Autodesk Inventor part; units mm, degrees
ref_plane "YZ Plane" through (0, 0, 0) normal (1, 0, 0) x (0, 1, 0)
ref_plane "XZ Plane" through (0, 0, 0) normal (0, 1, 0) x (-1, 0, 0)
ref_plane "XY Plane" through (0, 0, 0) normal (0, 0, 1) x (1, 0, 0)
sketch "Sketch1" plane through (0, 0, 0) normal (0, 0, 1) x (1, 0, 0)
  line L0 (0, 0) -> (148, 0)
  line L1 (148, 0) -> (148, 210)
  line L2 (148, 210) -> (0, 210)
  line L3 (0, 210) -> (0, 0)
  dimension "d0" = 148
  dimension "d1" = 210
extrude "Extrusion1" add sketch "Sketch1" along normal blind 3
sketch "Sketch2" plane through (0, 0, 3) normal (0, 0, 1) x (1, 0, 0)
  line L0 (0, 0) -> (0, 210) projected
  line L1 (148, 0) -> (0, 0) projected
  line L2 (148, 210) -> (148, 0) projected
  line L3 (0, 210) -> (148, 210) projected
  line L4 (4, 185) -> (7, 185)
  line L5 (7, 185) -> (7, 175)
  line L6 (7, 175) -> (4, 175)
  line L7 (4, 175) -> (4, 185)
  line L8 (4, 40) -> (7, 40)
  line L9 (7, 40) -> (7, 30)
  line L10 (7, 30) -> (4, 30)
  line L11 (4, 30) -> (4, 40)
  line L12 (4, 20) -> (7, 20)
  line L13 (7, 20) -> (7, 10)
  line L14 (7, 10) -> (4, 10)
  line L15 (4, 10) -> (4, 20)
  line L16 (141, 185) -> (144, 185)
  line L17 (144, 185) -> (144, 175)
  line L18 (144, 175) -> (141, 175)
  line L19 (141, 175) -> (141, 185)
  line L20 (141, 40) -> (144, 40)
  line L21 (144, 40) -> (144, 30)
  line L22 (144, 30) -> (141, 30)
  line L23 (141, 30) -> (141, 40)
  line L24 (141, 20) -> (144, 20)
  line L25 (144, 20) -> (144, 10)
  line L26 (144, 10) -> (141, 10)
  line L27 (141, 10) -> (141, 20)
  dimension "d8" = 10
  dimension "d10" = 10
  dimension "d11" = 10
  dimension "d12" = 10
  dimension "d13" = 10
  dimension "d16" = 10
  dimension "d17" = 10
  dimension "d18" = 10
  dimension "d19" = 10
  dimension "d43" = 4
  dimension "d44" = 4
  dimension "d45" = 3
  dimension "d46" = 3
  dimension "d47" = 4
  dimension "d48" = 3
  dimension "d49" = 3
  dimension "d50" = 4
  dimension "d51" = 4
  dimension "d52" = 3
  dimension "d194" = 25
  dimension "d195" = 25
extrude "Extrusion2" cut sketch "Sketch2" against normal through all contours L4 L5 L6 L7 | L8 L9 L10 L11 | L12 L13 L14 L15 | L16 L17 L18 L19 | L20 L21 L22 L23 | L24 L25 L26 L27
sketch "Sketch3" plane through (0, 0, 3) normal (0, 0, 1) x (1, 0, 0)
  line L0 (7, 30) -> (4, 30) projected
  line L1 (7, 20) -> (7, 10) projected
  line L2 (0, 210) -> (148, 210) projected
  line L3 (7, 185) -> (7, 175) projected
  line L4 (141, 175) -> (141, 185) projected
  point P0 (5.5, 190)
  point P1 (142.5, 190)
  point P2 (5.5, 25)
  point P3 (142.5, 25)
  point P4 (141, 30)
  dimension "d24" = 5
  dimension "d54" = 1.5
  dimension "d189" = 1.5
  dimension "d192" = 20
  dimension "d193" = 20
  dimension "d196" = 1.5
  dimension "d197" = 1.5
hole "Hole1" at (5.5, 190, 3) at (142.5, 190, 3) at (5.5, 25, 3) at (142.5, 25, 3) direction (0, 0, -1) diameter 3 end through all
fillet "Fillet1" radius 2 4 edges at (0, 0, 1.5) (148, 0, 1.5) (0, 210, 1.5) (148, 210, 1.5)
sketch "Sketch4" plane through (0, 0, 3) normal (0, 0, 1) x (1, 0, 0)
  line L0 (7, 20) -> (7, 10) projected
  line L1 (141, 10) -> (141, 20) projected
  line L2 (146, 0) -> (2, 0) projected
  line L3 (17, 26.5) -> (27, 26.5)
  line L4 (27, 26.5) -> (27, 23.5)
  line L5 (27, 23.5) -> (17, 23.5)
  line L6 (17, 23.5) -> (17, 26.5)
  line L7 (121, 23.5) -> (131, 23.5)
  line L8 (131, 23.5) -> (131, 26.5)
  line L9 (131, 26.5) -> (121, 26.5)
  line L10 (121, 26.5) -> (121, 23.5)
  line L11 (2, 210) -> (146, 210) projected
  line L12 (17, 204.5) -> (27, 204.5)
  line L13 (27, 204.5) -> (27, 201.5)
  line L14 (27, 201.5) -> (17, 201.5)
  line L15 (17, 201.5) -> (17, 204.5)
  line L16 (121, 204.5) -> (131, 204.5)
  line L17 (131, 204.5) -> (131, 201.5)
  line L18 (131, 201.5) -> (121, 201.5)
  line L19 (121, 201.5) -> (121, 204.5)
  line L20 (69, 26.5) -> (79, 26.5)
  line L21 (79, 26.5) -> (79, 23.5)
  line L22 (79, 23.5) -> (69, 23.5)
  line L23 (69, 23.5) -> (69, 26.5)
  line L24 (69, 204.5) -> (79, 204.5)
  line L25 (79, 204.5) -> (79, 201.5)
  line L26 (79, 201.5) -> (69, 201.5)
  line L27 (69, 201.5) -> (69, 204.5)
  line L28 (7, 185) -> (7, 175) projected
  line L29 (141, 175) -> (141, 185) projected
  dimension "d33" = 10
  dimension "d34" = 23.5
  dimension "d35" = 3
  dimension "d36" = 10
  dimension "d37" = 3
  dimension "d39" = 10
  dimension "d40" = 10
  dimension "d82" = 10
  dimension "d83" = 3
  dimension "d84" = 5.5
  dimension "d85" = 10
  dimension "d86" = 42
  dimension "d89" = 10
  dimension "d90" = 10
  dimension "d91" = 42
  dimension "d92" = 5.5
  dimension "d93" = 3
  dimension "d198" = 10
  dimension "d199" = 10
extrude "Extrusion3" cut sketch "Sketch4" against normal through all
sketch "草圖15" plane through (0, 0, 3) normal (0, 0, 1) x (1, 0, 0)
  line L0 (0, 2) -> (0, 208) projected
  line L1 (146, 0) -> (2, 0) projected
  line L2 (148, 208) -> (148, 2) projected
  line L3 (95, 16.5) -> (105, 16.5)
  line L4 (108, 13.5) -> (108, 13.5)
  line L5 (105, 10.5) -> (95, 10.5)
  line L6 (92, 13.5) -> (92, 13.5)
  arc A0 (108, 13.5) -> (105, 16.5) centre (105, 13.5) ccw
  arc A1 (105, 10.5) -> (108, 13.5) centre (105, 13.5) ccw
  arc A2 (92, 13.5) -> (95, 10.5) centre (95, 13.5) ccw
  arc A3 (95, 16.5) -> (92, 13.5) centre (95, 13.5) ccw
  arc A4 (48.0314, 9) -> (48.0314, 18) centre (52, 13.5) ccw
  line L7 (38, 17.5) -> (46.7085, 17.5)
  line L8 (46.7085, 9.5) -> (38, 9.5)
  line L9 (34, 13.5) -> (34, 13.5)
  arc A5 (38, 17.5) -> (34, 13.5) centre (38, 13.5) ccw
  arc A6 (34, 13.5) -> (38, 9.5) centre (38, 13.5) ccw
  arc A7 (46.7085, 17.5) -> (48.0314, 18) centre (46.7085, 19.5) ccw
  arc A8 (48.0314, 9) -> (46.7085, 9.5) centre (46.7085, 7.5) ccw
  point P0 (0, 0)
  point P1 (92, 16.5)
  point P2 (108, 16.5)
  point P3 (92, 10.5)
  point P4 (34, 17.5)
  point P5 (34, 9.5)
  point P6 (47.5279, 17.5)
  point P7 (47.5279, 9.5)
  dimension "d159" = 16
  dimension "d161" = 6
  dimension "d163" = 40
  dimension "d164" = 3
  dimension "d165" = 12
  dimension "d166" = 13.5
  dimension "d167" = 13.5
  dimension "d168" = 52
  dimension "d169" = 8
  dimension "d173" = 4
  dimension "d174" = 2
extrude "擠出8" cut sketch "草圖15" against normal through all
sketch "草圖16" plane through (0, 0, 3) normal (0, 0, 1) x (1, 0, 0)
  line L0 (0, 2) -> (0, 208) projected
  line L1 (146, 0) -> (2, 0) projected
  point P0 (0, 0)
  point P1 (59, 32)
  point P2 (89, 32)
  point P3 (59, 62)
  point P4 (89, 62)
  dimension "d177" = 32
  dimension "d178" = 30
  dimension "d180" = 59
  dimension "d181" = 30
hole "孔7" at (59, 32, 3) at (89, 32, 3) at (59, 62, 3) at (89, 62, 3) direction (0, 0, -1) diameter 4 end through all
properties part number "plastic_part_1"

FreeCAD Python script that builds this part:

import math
import FreeCAD as App
import Part
import Sketcher


def edges_at(feature, points):
    """Names of the edges that pass closest to the given points."""
    edges = feature.Shape.Edges
    near = lambda p: min(range(len(edges)), key=lambda i: edges[i].distToShape(Part.Vertex(*p))[0])
    return sorted({f"Edge{near(p) + 1}" for p in points})


def add_polygon(sketch, points):
    """Adds a closed chain of lines whose ends are joined by coincident constraints."""
    first, n = sketch.GeometryCount, len(points)
    for a, b in zip(points, points[1:] + points[:1]):
        sketch.addGeometry(Part.LineSegment(App.Vector(*a, 0), App.Vector(*b, 0)), False)
    for i in range(n):
        sketch.addConstraint(Sketcher.Constraint("Coincident", first + i, 2, first + (i + 1) % n, 1))

doc = App.newDocument("Part")
params = doc.addObject("Spreadsheet::Sheet", "Params")
for row, (alias, value) in enumerate([
    ("sketch1_width", "148 mm"),
    ("sketch1_height", "210 mm"),
    ("pad1_length", "3 mm"),
    ("sketch2_width", "3 mm"),
    ("sketch2_height", "10 mm"),
    ("sketch3_diameter", "3 mm"),
    ("hole_diameter", "3 mm"),
    ("fillet_radius", "2 mm"),
    ("sketch4_width", "10 mm"),
    ("sketch4_height", "3 mm"),
    ("sketch5_radius", "3 mm"),
    ("sketch5_radius2", "2 mm"),
    ("sketch5_radius3", "6 mm"),
    ("sketch5_radius4", "4 mm"),
    ("sketch5_width", "10 mm"),
    ("sketch6_diameter", "4 mm"),
    ("hole2_diameter", "4 mm"),
], start=1):
    params.set(f"A{row}", alias)
    params.set(f"B{row}", "=" + value)
    params.setAlias(f"B{row}", alias)

body = doc.addObject("PartDesign::Body", "Body")

sketch1 = body.newObject("Sketcher::SketchObject", "Sketch")
sketch1.AttachmentSupport = (doc.getObject("XY_Plane"), [""])
sketch1.MapMode = "FlatFace"
add_polygon(sketch1, [(0, 210), (0, 0), (148, 0), (148, 210)])
sketch1.addConstraint(Sketcher.Constraint("Vertical", 0))
sketch1.addConstraint(Sketcher.Constraint("Horizontal", 1))
sketch1.addConstraint(Sketcher.Constraint("Vertical", 2))
sketch1.addConstraint(Sketcher.Constraint("Horizontal", 3))
sketch1.addConstraint(Sketcher.Constraint("Coincident", 0, 2, -1, 1))
sketch1.addConstraint(Sketcher.Constraint("DistanceX", 1, 1, 1, 2, 148.0))
sketch1.addConstraint(Sketcher.Constraint("DistanceY", 0, 2, 0, 1, 210.0))
sketch1.setExpression("Constraints[9]", "Params.sketch1_width")
sketch1.setExpression("Constraints[10]", "Params.sketch1_height")
pad1 = body.newObject("PartDesign::Pad", "Pad")
pad1.Profile = sketch1
pad1.setExpression("Length", "Params.pad1_length")

sketch2 = body.newObject("Sketcher::SketchObject", "Sketch001")
sketch2.AttachmentSupport = (doc.getObject("XY_Plane"), [""])
sketch2.MapMode = "FlatFace"
sketch2.AttachmentOffset = App.Placement(App.Vector(0, 0, 3), App.Rotation())
add_polygon(sketch2, [(7, 185), (4, 185), (4, 175), (7, 175)])
add_polygon(sketch2, [(7, 40), (4, 40), (4, 30), (7, 30)])
add_polygon(sketch2, [(7, 20), (4, 20), (4, 10), (7, 10)])
add_polygon(sketch2, [(144, 185), (141, 185), (141, 175), (144, 175)])
add_polygon(sketch2, [(144, 40), (141, 40), (141, 30), (144, 30)])
add_polygon(sketch2, [(144, 20), (141, 20), (141, 10), (144, 10)])
sketch2.addConstraint(Sketcher.Constraint("Horizontal", 0))
sketch2.addConstraint(Sketcher.Constraint("Vertical", 1))
sketch2.addConstraint(Sketcher.Constraint("Horizontal", 2))
sketch2.addConstraint(Sketcher.Constraint("Vertical", 3))
sketch2.addConstraint(Sketcher.Constraint("Horizontal", 4))
sketch2.addConstraint(Sketcher.Constraint("Vertical", 5))
sketch2.addConstraint(Sketcher.Constraint("Horizontal", 6))
sketch2.addConstraint(Sketcher.Constraint("Vertical", 7))
sketch2.addConstraint(Sketcher.Constraint("Horizontal", 8))
sketch2.addConstraint(Sketcher.Constraint("Vertical", 9))
sketch2.addConstraint(Sketcher.Constraint("Horizontal", 10))
sketch2.addConstraint(Sketcher.Constraint("Vertical", 11))
sketch2.addConstraint(Sketcher.Constraint("Horizontal", 12))
sketch2.addConstraint(Sketcher.Constraint("Vertical", 13))
sketch2.addConstraint(Sketcher.Constraint("Horizontal", 14))
sketch2.addConstraint(Sketcher.Constraint("Vertical", 15))
sketch2.addConstraint(Sketcher.Constraint("Horizontal", 16))
sketch2.addConstraint(Sketcher.Constraint("Vertical", 17))
sketch2.addConstraint(Sketcher.Constraint("Horizontal", 18))
sketch2.addConstraint(Sketcher.Constraint("Vertical", 19))
sketch2.addConstraint(Sketcher.Constraint("Horizontal", 20))
sketch2.addConstraint(Sketcher.Constraint("Vertical", 21))
sketch2.addConstraint(Sketcher.Constraint("Horizontal", 22))
sketch2.addConstraint(Sketcher.Constraint("Vertical", 23))
sketch2.addConstraint(Sketcher.Constraint("Horizontal", 3, 2, 12, 2))
sketch2.addConstraint(Sketcher.Constraint("Horizontal", 2, 2, 13, 2))
sketch2.addConstraint(Sketcher.Constraint("Horizontal", 7, 2, 16, 2))
sketch2.addConstraint(Sketcher.Constraint("Horizontal", 6, 2, 17, 2))
sketch2.addConstraint(Sketcher.Constraint("Horizontal", 11, 2, 20, 2))
sketch2.addConstraint(Sketcher.Constraint("Horizontal", 10, 2, 21, 2))
sketch2.addConstraint(Sketcher.Constraint("Vertical", 1, 2, 4, 2))
sketch2.addConstraint(Sketcher.Constraint("Vertical", 3, 2, 6, 2))
sketch2.addConstraint(Sketcher.Constraint("Vertical", 5, 2, 8, 2))
sketch2.addConstraint(Sketcher.Constraint("Vertical", 7, 2, 10, 2))
sketch2.addConstraint(Sketcher.Constraint("Vertical", 13, 2, 16, 2))
sketch2.addConstraint(Sketcher.Constraint("Vertical", 15, 2, 18, 2))
sketch2.addConstraint(Sketcher.Constraint("Vertical", 17, 2, 20, 2))
sketch2.addConstraint(Sketcher.Constraint("Vertical", 19, 2, 22, 2))
sketch2.addConstraint(Sketcher.Constraint("Equal", 10, 12))
sketch2.addConstraint(Sketcher.Constraint("Equal", 3, 5))
sketch2.addConstraint(Sketcher.Constraint("Equal", 7, 9))
sketch2.addConstraint(Sketcher.Constraint("DistanceX", 0, 2, 0, 1, 3.0))
sketch2.addConstraint(Sketcher.Constraint("DistanceY", 1, 2, 1, 1, 10.0))
sketch2.addConstraint(Sketcher.Constraint("DistanceX", -1, 1, 0, 2, 4.0))
sketch2.addConstraint(Sketcher.Constraint("DistanceY", -1, 1, 9, 2, 10.0))
sketch2.addConstraint(Sketcher.Constraint("DistanceY", 8, 2, 5, 2, 10.0))
sketch2.addConstraint(Sketcher.Constraint("DistanceY", -1, 1, 0, 2, 185.0))
sketch2.addConstraint(Sketcher.Constraint("DistanceX", -1, 1, 12, 2, 141.0))
sketch2.setExpression("Constraints[65]", "Params.sketch2_width")
sketch2.setExpression("Constraints[66]", "Params.sketch2_height")
pocket1 = body.newObject("PartDesign::Pocket", "Pocket")
pocket1.Profile = sketch2
pocket1.Type = "ThroughAll"

sketch3 = body.newObject("Sketcher::SketchObject", "Sketch002")
sketch3.AttachmentSupport = (doc.getObject("XY_Plane"), [""])
sketch3.MapMode = "FlatFace"
sketch3.AttachmentOffset = App.Placement(App.Vector(0, 0, 3), App.Rotation())
sketch3.addGeometry(Part.Circle(App.Vector(5.5, 190, 0), App.Vector(0, 0, 1), 1.5), False)
sketch3.addGeometry(Part.Circle(App.Vector(142.5, 190, 0), App.Vector(0, 0, 1), 1.5), False)
sketch3.addGeometry(Part.Circle(App.Vector(5.5, 25, 0), App.Vector(0, 0, 1), 1.5), False)
sketch3.addGeometry(Part.Circle(App.Vector(142.5, 25, 0), App.Vector(0, 0, 1), 1.5), False)
sketch3.addConstraint(Sketcher.Constraint("Equal", 0, 1))
sketch3.addConstraint(Sketcher.Constraint("Equal", 1, 2))
sketch3.addConstraint(Sketcher.Constraint("Equal", 2, 3))
sketch3.addConstraint(Sketcher.Constraint("Horizontal", 0, 3, 1, 3))
sketch3.addConstraint(Sketcher.Constraint("Horizontal", 2, 3, 3, 3))
sketch3.addConstraint(Sketcher.Constraint("Vertical", 0, 3, 2, 3))
sketch3.addConstraint(Sketcher.Constraint("Vertical", 1, 3, 3, 3))
sketch3.addConstraint(Sketcher.Constraint("Diameter", 0, 3.0))
sketch3.addConstraint(Sketcher.Constraint("DistanceY", -1, 1, 0, 3, 190.0))
sketch3.addConstraint(Sketcher.Constraint("DistanceY", -1, 1, 2, 3, 25.0))
sketch3.addConstraint(Sketcher.Constraint("DistanceX", 0, 3, 1, 3, 137.0))
sketch3.addConstraint(Sketcher.Constraint("DistanceX", -1, 1, 0, 3, 5.5))
sketch3.setExpression("Constraints[7]", "Params.sketch3_diameter")
doc.recompute()
hole = body.newObject("PartDesign::Hole", "Hole")
hole.Profile = sketch3
hole.ThreadType = "None"
hole.setExpression("Diameter", "Params.hole_diameter")
hole.DepthType = "ThroughAll"
doc.recompute()

fillet = body.newObject("PartDesign::Fillet", "Fillet")
fillet.Base = (hole, edges_at(hole, [
    (0, 0, 1.5),
    (148, 0, 1.5),
    (0, 210, 1.5),
    (148, 210, 1.5),
]))
fillet.setExpression("Radius", "Params.fillet_radius")

sketch4 = body.newObject("Sketcher::SketchObject", "Sketch003")
sketch4.AttachmentSupport = (doc.getObject("XY_Plane"), [""])
sketch4.MapMode = "FlatFace"
sketch4.AttachmentOffset = App.Placement(App.Vector(0, 0, 3), App.Rotation())
add_polygon(sketch4, [(27, 26.5), (17, 26.5), (17, 23.5), (27, 23.5)])
add_polygon(sketch4, [(121, 26.5), (121, 23.5), (131, 23.5), (131, 26.5)])
add_polygon(sketch4, [(27, 204.5), (17, 204.5), (17, 201.5), (27, 201.5)])
add_polygon(sketch4, [(131, 204.5), (121, 204.5), (121, 201.5), (131, 201.5)])
add_polygon(sketch4, [(79, 26.5), (69, 26.5), (69, 23.5), (79, 23.5)])
add_polygon(sketch4, [(79, 204.5), (69, 204.5), (69, 201.5), (79, 201.5)])
sketch4.addConstraint(Sketcher.Constraint("Horizontal", 0))
sketch4.addConstraint(Sketcher.Constraint("Vertical", 1))
sketch4.addConstraint(Sketcher.Constraint("Horizontal", 2))
sketch4.addConstraint(Sketcher.Constraint("Vertical", 3))
sketch4.addConstraint(Sketcher.Constraint("Vertical", 4))
sketch4.addConstraint(Sketcher.Constraint("Horizontal", 5))
sketch4.addConstraint(Sketcher.Constraint("Vertical", 6))
sketch4.addConstraint(Sketcher.Constraint("Horizontal", 7))
sketch4.addConstraint(Sketcher.Constraint("Horizontal", 8))
sketch4.addConstraint(Sketcher.Constraint("Vertical", 9))
sketch4.addConstraint(Sketcher.Constraint("Horizontal", 10))
sketch4.addConstraint(Sketcher.Constraint("Vertical", 11))
sketch4.addConstraint(Sketcher.Constraint("Horizontal", 12))
sketch4.addConstraint(Sketcher.Constraint("Vertical", 13))
sketch4.addConstraint(Sketcher.Constraint("Horizontal", 14))
sketch4.addConstraint(Sketcher.Constraint("Vertical", 15))
sketch4.addConstraint(Sketcher.Constraint("Horizontal", 16))
sketch4.addConstraint(Sketcher.Constraint("Vertical", 17))
sketch4.addConstraint(Sketcher.Constraint("Horizontal", 18))
sketch4.addConstraint(Sketcher.Constraint("Vertical", 19))
sketch4.addConstraint(Sketcher.Constraint("Horizontal", 20))
sketch4.addConstraint(Sketcher.Constraint("Vertical", 21))
sketch4.addConstraint(Sketcher.Constraint("Horizontal", 22))
sketch4.addConstraint(Sketcher.Constraint("Vertical", 23))
sketch4.addConstraint(Sketcher.Constraint("Horizontal", 2, 2, 4, 2))
sketch4.addConstraint(Sketcher.Constraint("Horizontal", 3, 2, 6, 2))
sketch4.addConstraint(Sketcher.Constraint("Horizontal", 11, 2, 12, 2))
sketch4.addConstraint(Sketcher.Constraint("Horizontal", 10, 2, 13, 2))
sketch4.addConstraint(Sketcher.Constraint("Horizontal", 7, 2, 16, 2))
sketch4.addConstraint(Sketcher.Constraint("Horizontal", 5, 2, 17, 2))
sketch4.addConstraint(Sketcher.Constraint("Horizontal", 15, 2, 20, 2))
sketch4.addConstraint(Sketcher.Constraint("Horizontal", 14, 2, 21, 2))
sketch4.addConstraint(Sketcher.Constraint("Vertical", 1, 2, 8, 2))
sketch4.addConstraint(Sketcher.Constraint("Vertical", 3, 2, 10, 2))
sketch4.addConstraint(Sketcher.Constraint("Vertical", 7, 2, 12, 2))
sketch4.addConstraint(Sketcher.Constraint("Vertical", 6, 2, 14, 2))
sketch4.addConstraint(Sketcher.Constraint("Vertical", 17, 2, 20, 2))
sketch4.addConstraint(Sketcher.Constraint("Vertical", 19, 2, 22, 2))
sketch4.addConstraint(Sketcher.Constraint("Equal", 2, 5))
sketch4.addConstraint(Sketcher.Constraint("Equal", 14, 16))
sketch4.addConstraint(Sketcher.Constraint("Equal", 6, 9))
sketch4.addConstraint(Sketcher.Constraint("DistanceX", 0, 2, 0, 1, 10.0))
sketch4.addConstraint(Sketcher.Constraint("DistanceY", 1, 2, 1, 1, 3.0))
sketch4.addConstraint(Sketcher.Constraint("DistanceX", 3, 2, 16, 2, 42.0))
sketch4.addConstraint(Sketcher.Constraint("DistanceX", 18, 2, 4, 2, 42.0))
sketch4.addConstraint(Sketcher.Constraint("DistanceY", -1, 1, 1, 2, 23.5))
sketch4.addConstraint(Sketcher.Constraint("DistanceX", -1, 1, 0, 2, 17.0))
sketch4.addConstraint(Sketcher.Constraint("DistanceY", 0, 2, 8, 2, 178.0))
sketch4.setExpression("Constraints[65]", "Params.sketch4_width")
sketch4.setExpression("Constraints[66]", "Params.sketch4_height")
pocket2 = body.newObject("PartDesign::Pocket", "Pocket001")
pocket2.Profile = sketch4
pocket2.Type = "ThroughAll"

sketch5 = body.newObject("Sketcher::SketchObject", "Sketch004")
sketch5.AttachmentSupport = (doc.getObject("XY_Plane"), [""])
sketch5.MapMode = "FlatFace"
sketch5.AttachmentOffset = App.Placement(App.Vector(0, 0, 3), App.Rotation())
sketch5.addGeometry(Part.LineSegment(App.Vector(105, 16.5, 0), App.Vector(95, 16.5, 0)), False)
sketch5.addGeometry(Part.ArcOfCircle(Part.Circle(App.Vector(95, 13.5, 0), App.Vector(0, 0, 1), 3), math.radians(90), math.radians(270)), False)
sketch5.addGeometry(Part.LineSegment(App.Vector(95, 10.5, 0), App.Vector(105, 10.5, 0)), False)
sketch5.addGeometry(Part.ArcOfCircle(Part.Circle(App.Vector(105, 13.5, 0), App.Vector(0, 0, 1), 3), math.radians(-90), math.radians(90)), False)
sketch5.addGeometry(Part.ArcOfCircle(Part.Circle(App.Vector(46.7, 7.5, 0), App.Vector(0, 0, 1), 2), math.radians(49), math.radians(90)), False)
sketch5.addGeometry(Part.ArcOfCircle(Part.Circle(App.Vector(52, 13.5, 0), App.Vector(0, 0, 1), 6), math.radians(-131), math.radians(131)), False)
sketch5.addGeometry(Part.ArcOfCircle(Part.Circle(App.Vector(46.7, 19.5, 0), App.Vector(0, 0, 1), 2), math.radians(-90), math.radians(-49)), False)
sketch5.addGeometry(Part.LineSegment(App.Vector(46.7, 17.5, 0), App.Vector(38, 17.5, 0)), False)
sketch5.addGeometry(Part.ArcOfCircle(Part.Circle(App.Vector(38, 13.5, 0), App.Vector(0, 0, 1), 4), math.radians(90), math.radians(270)), False)
sketch5.addGeometry(Part.LineSegment(App.Vector(38, 9.5, 0), App.Vector(46.7, 9.5, 0)), False)
sketch5.addConstraint(Sketcher.Constraint("Tangent", 0, 2, 1, 1))
sketch5.addConstraint(Sketcher.Constraint("Tangent", 1, 2, 2, 1))
sketch5.addConstraint(Sketcher.Constraint("Tangent", 2, 2, 3, 1))
sketch5.addConstraint(Sketcher.Constraint("Tangent", 3, 2, 0, 1))
sketch5.addConstraint(Sketcher.Constraint("Tangent", 4, 1, 5, 1))
sketch5.addConstraint(Sketcher.Constraint("Tangent", 5, 2, 6, 2))
sketch5.addConstraint(Sketcher.Constraint("Tangent", 6, 1, 7, 1))
sketch5.addConstraint(Sketcher.Constraint("Tangent", 7, 2, 8, 1))
sketch5.addConstraint(Sketcher.Constraint("Tangent", 8, 2, 9, 1))
sketch5.addConstraint(Sketcher.Constraint("Tangent", 9, 2, 4, 2))
sketch5.addConstraint(Sketcher.Constraint("Horizontal", 0))
sketch5.addConstraint(Sketcher.Constraint("Horizontal", 2))
sketch5.addConstraint(Sketcher.Constraint("Horizontal", 7))
sketch5.addConstraint(Sketcher.Constraint("Horizontal", 9))
sketch5.addConstraint(Sketcher.Constraint("Equal", 4, 6))
sketch5.addConstraint(Sketcher.Constraint("Horizontal", 3, 3, 5, 3))
sketch5.addConstraint(Sketcher.Constraint("Horizontal", 5, 3, 8, 3))
sketch5.addConstraint(Sketcher.Constraint("Radius", 1, 3.0))
sketch5.addConstraint(Sketcher.Constraint("Radius", 4, 2.0))
sketch5.addConstraint(Sketcher.Constraint("Radius", 5, 6.0))
sketch5.addConstraint(Sketcher.Constraint("Radius", 8, 4.0))
sketch5.addConstraint(Sketcher.Constraint("DistanceX", -1, 1, 5, 3, 52.0))
sketch5.addConstraint(Sketcher.Constraint("DistanceY", -1, 1, 1, 3, 13.5))
sketch5.addConstraint(Sketcher.Constraint("DistanceX", 0, 2, 0, 1, 10.0))
sketch5.addConstraint(Sketcher.Constraint("DistanceX", -1, 1, 1, 3, 95.0))
sketch5.addConstraint(Sketcher.Constraint("DistanceX", -1, 1, 8, 3, 38.0))
sketch5.setExpression("Constraints[17]", "Params.sketch5_radius")
sketch5.setExpression("Constraints[18]", "Params.sketch5_radius2")
sketch5.setExpression("Constraints[19]", "Params.sketch5_radius3")
sketch5.setExpression("Constraints[20]", "Params.sketch5_radius4")
sketch5.setExpression("Constraints[23]", "Params.sketch5_width")
pocket3 = body.newObject("PartDesign::Pocket", "Pocket002")
pocket3.Profile = sketch5
pocket3.Type = "ThroughAll"

sketch6 = body.newObject("Sketcher::SketchObject", "Sketch005")
sketch6.AttachmentSupport = (doc.getObject("XY_Plane"), [""])
sketch6.MapMode = "FlatFace"
sketch6.AttachmentOffset = App.Placement(App.Vector(0, 0, 3), App.Rotation())
sketch6.addGeometry(Part.Circle(App.Vector(59, 32, 0), App.Vector(0, 0, 1), 2), False)
sketch6.addGeometry(Part.Circle(App.Vector(89, 32, 0), App.Vector(0, 0, 1), 2), False)
sketch6.addGeometry(Part.Circle(App.Vector(59, 62, 0), App.Vector(0, 0, 1), 2), False)
sketch6.addGeometry(Part.Circle(App.Vector(89, 62, 0), App.Vector(0, 0, 1), 2), False)
sketch6.addConstraint(Sketcher.Constraint("Equal", 0, 1))
sketch6.addConstraint(Sketcher.Constraint("Equal", 1, 2))
sketch6.addConstraint(Sketcher.Constraint("Equal", 2, 3))
sketch6.addConstraint(Sketcher.Constraint("Horizontal", 0, 3, 1, 3))
sketch6.addConstraint(Sketcher.Constraint("Horizontal", 2, 3, 3, 3))
sketch6.addConstraint(Sketcher.Constraint("Vertical", 0, 3, 2, 3))
sketch6.addConstraint(Sketcher.Constraint("Vertical", 1, 3, 3, 3))
sketch6.addConstraint(Sketcher.Constraint("Diameter", 0, 4.0))
sketch6.addConstraint(Sketcher.Constraint("DistanceX", -1, 1, 0, 3, 59.0))
sketch6.addConstraint(Sketcher.Constraint("DistanceY", -1, 1, 0, 3, 32.0))
sketch6.addConstraint(Sketcher.Constraint("DistanceX", -1, 1, 1, 3, 89.0))
sketch6.addConstraint(Sketcher.Constraint("DistanceY", -1, 1, 2, 3, 62.0))
sketch6.setExpression("Constraints[7]", "Params.sketch6_diameter")
doc.recompute()
hole2 = body.newObject("PartDesign::Hole", "Hole001")
hole2.Profile = sketch6
hole2.ThreadType = "None"
hole2.setExpression("Diameter", "Params.hole2_diameter")
hole2.DepthType = "ThroughAll"

doc.recompute()
